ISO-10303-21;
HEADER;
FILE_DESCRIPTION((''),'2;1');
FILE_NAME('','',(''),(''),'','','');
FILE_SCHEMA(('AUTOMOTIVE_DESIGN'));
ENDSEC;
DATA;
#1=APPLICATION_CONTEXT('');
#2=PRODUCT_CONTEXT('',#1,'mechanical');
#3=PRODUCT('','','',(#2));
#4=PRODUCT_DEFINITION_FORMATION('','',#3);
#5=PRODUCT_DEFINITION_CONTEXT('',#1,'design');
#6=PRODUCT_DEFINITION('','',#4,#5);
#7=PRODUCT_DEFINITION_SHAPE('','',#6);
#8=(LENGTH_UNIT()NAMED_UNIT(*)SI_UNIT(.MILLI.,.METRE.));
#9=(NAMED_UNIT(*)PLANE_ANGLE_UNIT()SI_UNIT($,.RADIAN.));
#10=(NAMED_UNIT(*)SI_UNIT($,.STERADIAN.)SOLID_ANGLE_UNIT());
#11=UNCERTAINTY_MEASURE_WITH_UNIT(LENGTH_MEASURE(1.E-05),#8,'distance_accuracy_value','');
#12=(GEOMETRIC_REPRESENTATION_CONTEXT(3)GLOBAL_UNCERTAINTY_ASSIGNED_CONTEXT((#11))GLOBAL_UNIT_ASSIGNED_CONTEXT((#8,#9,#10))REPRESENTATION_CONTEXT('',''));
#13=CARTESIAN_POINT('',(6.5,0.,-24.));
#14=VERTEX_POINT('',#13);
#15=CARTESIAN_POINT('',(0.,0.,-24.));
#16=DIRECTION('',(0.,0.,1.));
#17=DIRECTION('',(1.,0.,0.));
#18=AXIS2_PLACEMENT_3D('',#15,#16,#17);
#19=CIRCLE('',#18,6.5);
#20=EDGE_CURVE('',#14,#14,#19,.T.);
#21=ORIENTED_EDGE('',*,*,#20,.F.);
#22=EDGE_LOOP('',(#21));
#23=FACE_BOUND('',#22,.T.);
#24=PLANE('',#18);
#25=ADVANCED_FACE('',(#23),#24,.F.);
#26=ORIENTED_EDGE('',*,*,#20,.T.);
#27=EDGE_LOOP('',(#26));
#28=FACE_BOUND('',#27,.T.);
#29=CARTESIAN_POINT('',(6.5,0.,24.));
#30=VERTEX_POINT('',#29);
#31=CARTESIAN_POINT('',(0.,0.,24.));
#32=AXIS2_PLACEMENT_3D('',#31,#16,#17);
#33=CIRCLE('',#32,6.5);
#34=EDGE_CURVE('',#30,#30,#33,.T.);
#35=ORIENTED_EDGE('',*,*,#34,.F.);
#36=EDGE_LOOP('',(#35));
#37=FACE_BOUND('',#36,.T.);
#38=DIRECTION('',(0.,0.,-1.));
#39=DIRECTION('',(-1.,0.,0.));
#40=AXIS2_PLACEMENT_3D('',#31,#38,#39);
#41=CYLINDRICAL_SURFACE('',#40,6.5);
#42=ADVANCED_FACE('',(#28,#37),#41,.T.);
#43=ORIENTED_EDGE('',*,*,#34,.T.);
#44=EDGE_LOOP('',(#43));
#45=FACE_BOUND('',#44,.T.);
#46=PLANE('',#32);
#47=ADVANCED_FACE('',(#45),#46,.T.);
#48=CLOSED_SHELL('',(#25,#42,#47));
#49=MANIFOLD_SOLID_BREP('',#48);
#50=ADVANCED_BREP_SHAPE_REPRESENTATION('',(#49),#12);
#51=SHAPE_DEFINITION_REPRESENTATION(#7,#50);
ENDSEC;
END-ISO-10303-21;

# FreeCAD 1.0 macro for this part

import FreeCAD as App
import Part
import Sketcher
from FreeCAD import Vector

doc = App.newDocument("Part")
body = doc.addObject("PartDesign::Body", "Body")

sketch1 = doc.addObject("Sketcher::SketchObject", "Sketch")
body.addObject(sketch1)
sketch1.AttachmentSupport = (doc.XY_Plane, [""])
sketch1.MapMode = "FlatFace"
sketch1.addGeometry(Part.Circle(Vector(0, 0, 0), Vector(0, 0, 1), 6), False)
sketch1.addConstraint(Sketcher.Constraint("Coincident", 0, 3, -1, 1))
sketch1.addConstraint(Sketcher.Constraint("Diameter", 0, 13.0))
pad1 = doc.addObject("PartDesign::Pad", "Pad")
body.addObject(pad1)
pad1.Profile = sketch1
pad1.Length = 48
pad1.Midplane = True

doc.recompute()
